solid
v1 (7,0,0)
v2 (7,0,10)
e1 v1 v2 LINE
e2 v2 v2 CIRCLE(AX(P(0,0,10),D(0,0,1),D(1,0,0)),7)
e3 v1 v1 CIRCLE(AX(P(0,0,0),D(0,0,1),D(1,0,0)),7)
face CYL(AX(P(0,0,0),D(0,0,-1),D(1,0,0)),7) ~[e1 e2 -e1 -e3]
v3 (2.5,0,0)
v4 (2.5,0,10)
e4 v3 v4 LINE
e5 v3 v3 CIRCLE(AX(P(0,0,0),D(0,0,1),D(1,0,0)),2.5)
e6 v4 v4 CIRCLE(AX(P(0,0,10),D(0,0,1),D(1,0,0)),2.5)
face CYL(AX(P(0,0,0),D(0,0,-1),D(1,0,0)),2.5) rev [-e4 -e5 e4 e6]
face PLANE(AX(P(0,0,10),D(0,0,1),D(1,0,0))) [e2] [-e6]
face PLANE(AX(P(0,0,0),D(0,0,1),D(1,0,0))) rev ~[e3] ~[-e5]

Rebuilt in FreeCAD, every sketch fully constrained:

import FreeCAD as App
import Part
import Sketcher

V = App.Vector
Q = App.Units.Quantity

doc = App.newDocument("Part")
body = doc.addObject("PartDesign::Body", "Body")

# Sketch on XY plane
sketch1 = body.newObject("Sketcher::SketchObject", "Sketch")
sketch1.AttachmentSupport = (doc.getObject("XY_Plane"), [""])
sketch1.MapMode = "FlatFace"
sketch1.addGeometry([
    Part.Circle(V(0, 0, 0), V(0, 0, 1), 7),
    Part.Circle(V(0, 0, 0), V(0, 0, 1), 2.5),
], False)
sketch1.addConstraint([
    Sketcher.Constraint("Coincident", 0, 3, -1, 1),
    Sketcher.Constraint("Coincident", 1, 3, -1, 1),
    Sketcher.Constraint("Diameter", 0, Q("14 mm")),
    Sketcher.Constraint("Diameter", 1, Q("5 mm")),
])
pad1 = body.newObject("PartDesign::Pad", "Pad")
pad1.Profile = sketch1
pad1.Length = 10

doc.recompute()
